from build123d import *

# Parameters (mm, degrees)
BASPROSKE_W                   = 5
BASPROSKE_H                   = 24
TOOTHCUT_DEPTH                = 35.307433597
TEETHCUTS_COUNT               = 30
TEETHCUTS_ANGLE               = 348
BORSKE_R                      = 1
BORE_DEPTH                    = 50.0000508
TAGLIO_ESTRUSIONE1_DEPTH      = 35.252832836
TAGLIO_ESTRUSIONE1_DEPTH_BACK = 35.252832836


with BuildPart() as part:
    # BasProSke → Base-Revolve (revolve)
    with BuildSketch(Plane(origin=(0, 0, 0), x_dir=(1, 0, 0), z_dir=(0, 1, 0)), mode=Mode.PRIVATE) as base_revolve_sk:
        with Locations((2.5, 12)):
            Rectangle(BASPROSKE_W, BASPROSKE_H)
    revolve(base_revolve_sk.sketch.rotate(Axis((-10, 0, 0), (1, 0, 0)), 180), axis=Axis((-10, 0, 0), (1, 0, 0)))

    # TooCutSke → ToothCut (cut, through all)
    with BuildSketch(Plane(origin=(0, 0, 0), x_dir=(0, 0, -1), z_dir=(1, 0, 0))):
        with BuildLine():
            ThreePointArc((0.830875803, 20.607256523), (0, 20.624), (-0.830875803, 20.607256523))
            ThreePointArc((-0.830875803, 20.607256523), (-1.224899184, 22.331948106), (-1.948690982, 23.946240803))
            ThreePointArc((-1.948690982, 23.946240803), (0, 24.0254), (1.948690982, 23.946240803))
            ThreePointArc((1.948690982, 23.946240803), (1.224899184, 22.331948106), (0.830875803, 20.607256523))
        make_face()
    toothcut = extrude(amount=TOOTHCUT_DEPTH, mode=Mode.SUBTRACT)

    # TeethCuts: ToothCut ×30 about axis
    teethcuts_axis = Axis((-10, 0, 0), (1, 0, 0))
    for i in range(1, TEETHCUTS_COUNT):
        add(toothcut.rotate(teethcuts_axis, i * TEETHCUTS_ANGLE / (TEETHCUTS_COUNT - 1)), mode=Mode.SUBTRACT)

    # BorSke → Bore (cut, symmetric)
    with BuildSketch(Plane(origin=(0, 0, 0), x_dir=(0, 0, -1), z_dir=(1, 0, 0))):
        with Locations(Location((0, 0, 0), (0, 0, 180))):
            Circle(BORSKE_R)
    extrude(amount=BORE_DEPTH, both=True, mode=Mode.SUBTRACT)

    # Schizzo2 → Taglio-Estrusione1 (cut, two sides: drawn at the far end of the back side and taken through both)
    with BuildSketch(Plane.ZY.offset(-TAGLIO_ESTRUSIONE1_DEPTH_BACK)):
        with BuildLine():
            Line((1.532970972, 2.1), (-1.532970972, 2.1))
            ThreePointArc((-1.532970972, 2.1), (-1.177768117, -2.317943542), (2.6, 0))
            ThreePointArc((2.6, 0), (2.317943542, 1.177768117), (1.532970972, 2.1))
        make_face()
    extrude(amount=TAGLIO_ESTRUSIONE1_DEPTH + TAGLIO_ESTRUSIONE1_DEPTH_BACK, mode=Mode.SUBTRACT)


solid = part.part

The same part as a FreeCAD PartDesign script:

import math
import FreeCAD as App
import Part
import Sketcher
Q = App.Units.Quantity


def add_polygon(sketch, points):
    """Adds a closed chain of lines whose ends are joined by coincident constraints."""
    first, n = sketch.GeometryCount, len(points)
    for a, b in zip(points, points[1:] + points[:1]):
        sketch.addGeometry(Part.LineSegment(App.Vector(*a, 0), App.Vector(*b, 0)), False)
    for i in range(n):
        sketch.addConstraint(Sketcher.Constraint("Coincident", first + i, 2, first + (i + 1) % n, 1))

doc = App.newDocument("Part")
body = doc.addObject("PartDesign::Body", "Body")

# Sketch on XZ plane
sketch1 = body.newObject("Sketcher::SketchObject", "Sketch")
sketch1.AttachmentSupport = (doc.getObject("XZ_Plane"), [""])
sketch1.MapMode = "FlatFace"
add_polygon(sketch1, [(0, -24), (0, 0), (5, 0), (5, -24)])  # lines 0-3
sketch1.addConstraint(Sketcher.Constraint("Vertical", 0))
sketch1.addConstraint(Sketcher.Constraint("Horizontal", 1))
sketch1.addConstraint(Sketcher.Constraint("Vertical", 2))
sketch1.addConstraint(Sketcher.Constraint("Horizontal", 3))
sketch1.addConstraint(Sketcher.Constraint("Coincident", 0, 2, -1, 1))
sketch1.addConstraint(Sketcher.Constraint("DistanceX", 1, 1, 1, 2, Q("5 mm")))
sketch1.addConstraint(Sketcher.Constraint("DistanceY", 0, 1, 0, 2, Q("24 mm")))
revolution = body.newObject("PartDesign::Revolution", "Revolution")
revolution.Profile = sketch1
revolution.ReferenceAxis = (sketch1, ["H_Axis"])
revolution.Angle = 360

# Sketch on YZ plane
sketch2 = body.newObject("Sketcher::SketchObject", "Sketch001")
sketch2.AttachmentSupport = (doc.getObject("YZ_Plane"), [""])
sketch2.MapMode = "FlatFace"
sketch2.addGeometry(Part.ArcOfCircle(Part.Circle(App.Vector(0, 0, 0), App.Vector(0, 0, 1), 20.624), math.radians(-2.308891), math.radians(2.308891)), False)
sketch2.addGeometry(Part.ArcOfCircle(Part.Circle(App.Vector(19.474812, -9.759345, 0), App.Vector(0, 0, 1), 9), math.radians(60.209805), math.radians(82.771472)), False)
sketch2.addGeometry(Part.ArcOfCircle(Part.Circle(App.Vector(0, 0, 0), App.Vector(0, 0, 1), 24.0254), math.radians(-4.652349), math.radians(4.652349)), False)
sketch2.addGeometry(Part.ArcOfCircle(Part.Circle(App.Vector(19.474812, 9.759345, 0), App.Vector(0, 0, 1), 9), math.radians(-82.771472), math.radians(-60.209805)), False)
sketch2.addConstraint(Sketcher.Constraint("Coincident", 0, 1, 1, 2))
sketch2.addConstraint(Sketcher.Constraint("Coincident", 1, 1, 2, 1))
sketch2.addConstraint(Sketcher.Constraint("Coincident", 2, 2, 3, 2))
sketch2.addConstraint(Sketcher.Constraint("Coincident", 3, 1, 0, 2))
sketch2.addConstraint(Sketcher.Constraint("Coincident", 0, 3, -1, 1))
sketch2.addConstraint(Sketcher.Constraint("Coincident", 2, 3, -1, 1))
sketch2.addConstraint(Sketcher.Constraint("Equal", 1, 3))
sketch2.addConstraint(Sketcher.Constraint("Symmetric", 1, 3, 3, 3, -1))
sketch2.addConstraint(Sketcher.Constraint("Radius", 1, Q("9 mm")))
sketch2.addConstraint(Sketcher.Constraint("Radius", 0, Q("20.624 mm")))
sketch2.addConstraint(Sketcher.Constraint("Radius", 2, Q("24.0254 mm")))
sketch2.addConstraint(Sketcher.Constraint("DistanceX", -1, 1, 1, 3, Q("19.474812 mm")))
sketch2.addConstraint(Sketcher.Constraint("DistanceX", -1, 1, 1, 1, Q("23.946241 mm")))
pocket1 = body.newObject("PartDesign::Pocket", "Pocket")
pocket1.Profile = sketch2
pocket1.Type = "ThroughAll"
pocket1.Reversed = True
doc.recompute()

polarpattern = body.newObject("PartDesign::PolarPattern", "PolarPattern")
polarpattern.Originals = [pocket1]
polarpattern.Axis = (doc.getObject("X_Axis"), [""])
polarpattern.Angle = 360
polarpattern.Occurrences = 30
body.Tip = polarpattern

# Sketch on YZ plane
sketch3 = body.newObject("Sketcher::SketchObject", "Sketch002")
sketch3.AttachmentSupport = (doc.getObject("YZ_Plane"), [""])
sketch3.MapMode = "FlatFace"
sketch3.addGeometry(Part.Circle(App.Vector(0, 0, 0), App.Vector(0, 0, 1), 1), False)
sketch3.addConstraint(Sketcher.Constraint("Coincident", 0, 3, -1, 1))
sketch3.addConstraint(Sketcher.Constraint("Diameter", 0, Q("2 mm")))
pocket2 = body.newObject("PartDesign::Pocket", "Pocket001")
pocket2.Profile = sketch3
pocket2.Length = 100.000102
pocket2.Midplane = True

# Sketch on YZ plane
sketch4 = body.newObject("Sketcher::SketchObject", "Sketch003")
sketch4.AttachmentSupport = (doc.getObject("YZ_Plane"), [""])
sketch4.MapMode = "FlatFace"
sketch4.addGeometry(Part.LineSegment(App.Vector(2.1, 1.532971, 0), App.Vector(2.1, -1.532971, 0)), False)
sketch4.addGeometry(Part.ArcOfCircle(Part.Circle(App.Vector(0, 0, 0), App.Vector(0, 0, 1), 2.6), math.radians(90), math.radians(323.871073)), False)
sketch4.addGeometry(Part.ArcOfCircle(Part.Circle(App.Vector(0, 0, 0), App.Vector(0, 0, 1), 2.6), math.radians(36.128927), math.radians(90)), False)
sketch4.addConstraint(Sketcher.Constraint("Coincident", 0, 2, 1, 2))
sketch4.addConstraint(Sketcher.Constraint("Tangent", 1, 1, 2, 2))
sketch4.addConstraint(Sketcher.Constraint("Coincident", 2, 1, 0, 1))
sketch4.addConstraint(Sketcher.Constraint("Vertical", 0))
sketch4.addConstraint(Sketcher.Constraint("Coincident", 1, 3, -1, 1))
sketch4.addConstraint(Sketcher.Constraint("Equal", 1, 2))
sketch4.addConstraint(Sketcher.Constraint("PointOnObject", 1, 1, -2))
sketch4.addConstraint(Sketcher.Constraint("Radius", 1, Q("2.6 mm")))
sketch4.addConstraint(Sketcher.Constraint("DistanceX", -1, 1, 0, 2, Q("2.1 mm")))
pocket3 = body.newObject("PartDesign::Pocket", "Pocket002")
pocket3.Profile = sketch4
pocket3.Type = "ThroughAll"
pocket3.Midplane = True

doc.recompute()
